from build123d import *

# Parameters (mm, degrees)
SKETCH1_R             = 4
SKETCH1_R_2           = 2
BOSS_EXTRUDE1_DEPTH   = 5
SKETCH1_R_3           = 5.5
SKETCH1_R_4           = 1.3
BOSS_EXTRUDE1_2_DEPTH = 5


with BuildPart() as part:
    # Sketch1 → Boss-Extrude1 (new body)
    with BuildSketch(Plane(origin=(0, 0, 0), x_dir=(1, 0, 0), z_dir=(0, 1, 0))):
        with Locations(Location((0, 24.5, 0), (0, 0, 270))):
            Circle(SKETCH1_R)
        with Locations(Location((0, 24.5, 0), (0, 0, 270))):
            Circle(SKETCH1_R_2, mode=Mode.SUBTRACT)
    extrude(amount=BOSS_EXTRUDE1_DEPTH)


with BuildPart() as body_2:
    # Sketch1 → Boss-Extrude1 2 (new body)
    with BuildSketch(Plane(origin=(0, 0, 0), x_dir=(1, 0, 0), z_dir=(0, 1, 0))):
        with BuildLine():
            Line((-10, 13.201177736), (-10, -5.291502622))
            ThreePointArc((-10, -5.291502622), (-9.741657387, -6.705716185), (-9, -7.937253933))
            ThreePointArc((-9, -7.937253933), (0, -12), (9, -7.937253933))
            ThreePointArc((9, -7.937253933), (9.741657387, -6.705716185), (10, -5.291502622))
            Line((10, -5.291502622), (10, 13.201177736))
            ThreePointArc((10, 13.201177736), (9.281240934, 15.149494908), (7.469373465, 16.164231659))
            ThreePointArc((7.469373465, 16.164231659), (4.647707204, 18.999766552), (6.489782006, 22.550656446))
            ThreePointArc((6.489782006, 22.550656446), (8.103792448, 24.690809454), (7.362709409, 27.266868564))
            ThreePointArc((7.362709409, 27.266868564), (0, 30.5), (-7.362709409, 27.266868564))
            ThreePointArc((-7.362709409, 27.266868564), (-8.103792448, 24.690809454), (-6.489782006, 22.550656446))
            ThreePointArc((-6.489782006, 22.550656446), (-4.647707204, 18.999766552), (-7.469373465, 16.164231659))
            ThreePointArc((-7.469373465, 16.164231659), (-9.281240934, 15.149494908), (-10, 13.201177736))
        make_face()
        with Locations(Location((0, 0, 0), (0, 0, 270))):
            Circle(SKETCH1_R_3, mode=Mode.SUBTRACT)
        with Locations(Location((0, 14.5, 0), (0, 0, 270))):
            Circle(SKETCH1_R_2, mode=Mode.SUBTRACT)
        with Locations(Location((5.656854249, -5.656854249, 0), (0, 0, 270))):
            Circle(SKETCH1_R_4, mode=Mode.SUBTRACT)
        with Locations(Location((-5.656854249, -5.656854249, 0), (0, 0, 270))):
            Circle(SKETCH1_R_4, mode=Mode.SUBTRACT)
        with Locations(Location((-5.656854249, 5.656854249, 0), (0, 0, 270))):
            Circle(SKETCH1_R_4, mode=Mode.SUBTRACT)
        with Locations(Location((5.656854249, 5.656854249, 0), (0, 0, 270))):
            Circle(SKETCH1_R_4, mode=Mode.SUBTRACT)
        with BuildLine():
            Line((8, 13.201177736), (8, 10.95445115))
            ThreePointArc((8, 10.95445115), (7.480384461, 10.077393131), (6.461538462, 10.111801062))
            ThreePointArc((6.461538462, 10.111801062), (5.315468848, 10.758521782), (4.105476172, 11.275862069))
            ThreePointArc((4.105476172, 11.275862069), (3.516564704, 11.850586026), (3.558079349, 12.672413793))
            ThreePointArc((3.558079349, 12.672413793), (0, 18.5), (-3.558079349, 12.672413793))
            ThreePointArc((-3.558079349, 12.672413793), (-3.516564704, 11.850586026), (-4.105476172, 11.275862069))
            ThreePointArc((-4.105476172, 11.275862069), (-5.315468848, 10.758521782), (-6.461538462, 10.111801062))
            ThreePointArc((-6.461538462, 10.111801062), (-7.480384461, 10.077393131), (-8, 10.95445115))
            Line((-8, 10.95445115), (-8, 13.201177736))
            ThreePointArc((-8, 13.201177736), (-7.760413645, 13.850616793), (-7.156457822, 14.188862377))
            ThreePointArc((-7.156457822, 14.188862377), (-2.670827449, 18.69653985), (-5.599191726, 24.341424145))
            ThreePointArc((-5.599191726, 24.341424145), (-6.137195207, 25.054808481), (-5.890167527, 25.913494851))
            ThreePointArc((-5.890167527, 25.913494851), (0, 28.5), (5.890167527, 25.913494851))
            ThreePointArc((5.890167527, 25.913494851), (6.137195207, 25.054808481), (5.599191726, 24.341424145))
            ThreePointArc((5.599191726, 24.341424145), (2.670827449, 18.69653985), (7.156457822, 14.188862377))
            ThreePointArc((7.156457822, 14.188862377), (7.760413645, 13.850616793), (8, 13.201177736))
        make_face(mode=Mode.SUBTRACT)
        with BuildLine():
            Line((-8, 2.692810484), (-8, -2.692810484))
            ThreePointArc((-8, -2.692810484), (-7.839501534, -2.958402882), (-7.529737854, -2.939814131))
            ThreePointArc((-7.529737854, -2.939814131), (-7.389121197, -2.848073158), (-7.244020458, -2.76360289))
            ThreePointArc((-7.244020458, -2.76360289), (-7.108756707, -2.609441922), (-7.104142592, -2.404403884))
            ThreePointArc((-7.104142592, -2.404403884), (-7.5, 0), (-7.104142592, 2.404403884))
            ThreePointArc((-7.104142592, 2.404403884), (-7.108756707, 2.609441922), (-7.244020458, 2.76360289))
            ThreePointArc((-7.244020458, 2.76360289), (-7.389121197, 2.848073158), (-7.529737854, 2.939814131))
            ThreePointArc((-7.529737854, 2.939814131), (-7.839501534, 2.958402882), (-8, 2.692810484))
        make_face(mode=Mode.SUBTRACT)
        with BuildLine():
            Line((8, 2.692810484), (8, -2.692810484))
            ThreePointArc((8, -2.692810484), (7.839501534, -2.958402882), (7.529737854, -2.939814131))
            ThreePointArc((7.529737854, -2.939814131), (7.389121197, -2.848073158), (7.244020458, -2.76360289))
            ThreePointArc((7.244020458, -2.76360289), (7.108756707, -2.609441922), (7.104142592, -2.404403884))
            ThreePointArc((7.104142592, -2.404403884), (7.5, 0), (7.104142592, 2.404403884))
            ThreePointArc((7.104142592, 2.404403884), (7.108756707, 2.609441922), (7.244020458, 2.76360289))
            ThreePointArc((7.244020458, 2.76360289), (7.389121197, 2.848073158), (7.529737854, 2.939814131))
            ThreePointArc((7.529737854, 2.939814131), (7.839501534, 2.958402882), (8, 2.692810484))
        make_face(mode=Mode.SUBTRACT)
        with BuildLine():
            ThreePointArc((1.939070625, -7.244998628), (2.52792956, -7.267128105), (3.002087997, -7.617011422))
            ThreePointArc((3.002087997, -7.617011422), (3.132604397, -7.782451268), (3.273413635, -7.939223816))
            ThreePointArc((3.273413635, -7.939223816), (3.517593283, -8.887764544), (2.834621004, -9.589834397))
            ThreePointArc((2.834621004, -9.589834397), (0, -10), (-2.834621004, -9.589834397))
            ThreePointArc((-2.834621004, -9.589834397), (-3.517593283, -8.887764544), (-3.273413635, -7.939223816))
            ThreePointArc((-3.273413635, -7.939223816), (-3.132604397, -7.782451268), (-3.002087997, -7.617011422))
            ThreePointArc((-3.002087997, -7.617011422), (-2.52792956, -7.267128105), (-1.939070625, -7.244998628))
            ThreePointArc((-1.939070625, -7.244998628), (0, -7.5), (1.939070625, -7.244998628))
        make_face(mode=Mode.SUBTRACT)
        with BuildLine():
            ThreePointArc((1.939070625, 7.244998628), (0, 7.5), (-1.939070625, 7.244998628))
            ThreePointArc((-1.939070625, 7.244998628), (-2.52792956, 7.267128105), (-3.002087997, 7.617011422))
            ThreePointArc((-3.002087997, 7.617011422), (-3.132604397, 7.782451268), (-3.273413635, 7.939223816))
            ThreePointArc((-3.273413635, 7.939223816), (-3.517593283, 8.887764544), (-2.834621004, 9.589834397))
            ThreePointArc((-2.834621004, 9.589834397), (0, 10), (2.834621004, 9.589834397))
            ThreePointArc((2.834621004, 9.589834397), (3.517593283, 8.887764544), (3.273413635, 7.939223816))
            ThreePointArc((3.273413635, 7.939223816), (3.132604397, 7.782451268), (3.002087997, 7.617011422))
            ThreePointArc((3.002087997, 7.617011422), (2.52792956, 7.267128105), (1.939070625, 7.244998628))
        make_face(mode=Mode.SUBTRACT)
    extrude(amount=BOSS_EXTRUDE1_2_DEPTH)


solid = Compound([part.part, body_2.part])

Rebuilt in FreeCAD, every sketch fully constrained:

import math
import FreeCAD as App
import Part
import Sketcher

doc = App.newDocument("Part")
body = doc.addObject("PartDesign::Body", "Body")

# Sketch on XZ plane
sketch1 = doc.addObject("Sketcher::SketchObject", "Sketch")
body.addObject(sketch1)
sketch1.AttachmentSupport = (doc.XZ_Plane, [""])
sketch1.MapMode = "FlatFace"
sketch1.addGeometry([
    Part.Circle(App.Vector(0, -24.5, 0), App.Vector(0, 0, 1), 4),
    Part.Circle(App.Vector(0, -24.5, 0), App.Vector(0, 0, 1), 2),
], False)
sketch1.addConstraint([
    Sketcher.Constraint("Coincident", 1, 3, 0, 3),
    Sketcher.Constraint("PointOnObject", 0, 3, -2),
    Sketcher.Constraint("Diameter", 0, 8.0),
    Sketcher.Constraint("Diameter", 1, 4.0),
    Sketcher.Constraint("DistanceY", 0, 3, -1, 1, 24.5),
])
pad1 = doc.addObject("PartDesign::Pad", "Pad")
body.addObject(pad1)
pad1.Profile = sketch1
pad1.Length = 5
pad1.Reversed = True
body2 = doc.addObject("PartDesign::Body", "Body001")

# Sketch on XZ plane
sketch2 = doc.addObject("Sketcher::SketchObject", "Sketch001")
body2.addObject(sketch2)
sketch2.AttachmentSupport = (doc.getObject("XZ_Plane001"), [""])
sketch2.MapMode = "FlatFace"
sketch2.addGeometry([
    Part.LineSegment(App.Vector(-10, -13.2, 0), App.Vector(-10, 5.29, 0)),  # 0
    Part.ArcOfCircle(Part.Circle(App.Vector(-6, 5.29, 0), App.Vector(0, 0, 1), 4), math.radians(139), math.radians(180)),  # 1
    Part.ArcOfCircle(Part.Circle(App.Vector(0, 0, 0), App.Vector(0, 0, 1), 12), math.radians(41), math.radians(139)),  # 2
    Part.ArcOfCircle(Part.Circle(App.Vector(6, 5.29, 0), App.Vector(0, 0, 1), 4), math.radians(0), math.radians(41)),  # 3
    Part.LineSegment(App.Vector(10, 5.29, 0), App.Vector(10, -13.2, 0)),  # 4
    Part.ArcOfCircle(Part.Circle(App.Vector(7, -13.2, 0), App.Vector(0, 0, 1), 3), math.radians(-81), math.radians(0)),  # 5
    Part.ArcOfCircle(Part.Circle(App.Vector(8, -19.51, 0), App.Vector(0, 0, 1), 3.39), math.radians(99), math.radians(244)),  # 6
    Part.ArcOfCircle(Part.Circle(App.Vector(5.15, -25.24, 0), App.Vector(0, 0, 1), 3), math.radians(-43), math.radians(64)),  # 7
    Part.ArcOfCircle(Part.Circle(App.Vector(0, -20.5, 0), App.Vector(0, 0, 1), 10), math.radians(-137), math.radians(-43)),  # 8
    Part.ArcOfCircle(Part.Circle(App.Vector(-5.15, -25.24, 0), App.Vector(0, 0, 1), 3), math.radians(116), math.radians(223)),  # 9
    Part.ArcOfCircle(Part.Circle(App.Vector(-8, -19.51, 0), App.Vector(0, 0, 1), 3.39), math.radians(-64), math.radians(81)),  # 10
    Part.ArcOfCircle(Part.Circle(App.Vector(-7, -13.2, 0), App.Vector(0, 0, 1), 3), math.radians(180), math.radians(261)),  # 11
    Part.Circle(App.Vector(-5.66, 5.66, 0), App.Vector(0, 0, 1), 1.3),  # 12
    Part.LineSegment(App.Vector(-8, 2.69, 0), App.Vector(-8, -2.69, 0)),  # 13
    Part.ArcOfCircle(Part.Circle(App.Vector(-7.7, -2.69, 0), App.Vector(0, 0, 1), 0.3), math.radians(180), math.radians(305)),  # 14
    Part.ArcOfCircle(Part.Circle(App.Vector(-5.66, -5.66, 0), App.Vector(0, 0, 1), 3.3), math.radians(118.75), math.radians(124.58)),  # 15
    Part.ArcOfCircle(Part.Circle(App.Vector(-7.39, -2.5, 0), App.Vector(0, 0, 1), 0.3), math.radians(-61), math.radians(19)),  # 16
    Part.ArcOfCircle(Part.Circle(App.Vector(0, 0, 0), App.Vector(0, 0, 1), 7.5), math.radians(161), math.radians(199)),  # 17
    Part.ArcOfCircle(Part.Circle(App.Vector(-7.39, 2.5, 0), App.Vector(0, 0, 1), 0.3), math.radians(-19), math.radians(61)),  # 18
    Part.ArcOfCircle(Part.Circle(App.Vector(-5.66, 5.66, 0), App.Vector(0, 0, 1), 3.3), math.radians(-124.58), math.radians(-118.75)),  # 19
    Part.ArcOfCircle(Part.Circle(App.Vector(-7.7, 2.69, 0), App.Vector(0, 0, 1), 0.3), math.radians(55), math.radians(180)),  # 20
    Part.Circle(App.Vector(-5.66, -5.66, 0), App.Vector(0, 0, 1), 1.3),  # 21
    Part.ArcOfCircle(Part.Circle(App.Vector(0, 0, 0), App.Vector(0, 0, 1), 7.5), math.radians(75), math.radians(105)),  # 22
    Part.ArcOfCircle(Part.Circle(App.Vector(2.2, 8.21, 0), App.Vector(0, 0, 1), 1), math.radians(-105), math.radians(-36)),  # 23
    Part.ArcOfCircle(Part.Circle(App.Vector(5.66, 5.66, 0), App.Vector(0, 0, 1), 3.3), math.radians(136.24), math.radians(143.56)),  # 24
    Part.ArcOfCircle(Part.Circle(App.Vector(2.55, 8.63, 0), App.Vector(0, 0, 1), 1), math.radians(-44), math.radians(74)),  # 25
    Part.ArcOfCircle(Part.Circle(App.Vector(0, 0, 0), App.Vector(0, 0, 1), 10), math.radians(74), math.radians(106)),  # 26
    Part.ArcOfCircle(Part.Circle(App.Vector(-2.55, 8.63, 0), App.Vector(0, 0, 1), 1), math.radians(106), math.radians(224)),  # 27
    Part.ArcOfCircle(Part.Circle(App.Vector(-5.66, 5.66, 0), App.Vector(0, 0, 1), 3.3), math.radians(36.44), math.radians(43.76)),  # 28
    Part.ArcOfCircle(Part.Circle(App.Vector(-2.2, 8.21, 0), App.Vector(0, 0, 1), 1), math.radians(-144), math.radians(-75)),  # 29
    Part.Circle(App.Vector(5.66, 5.66, 0), App.Vector(0, 0, 1), 1.3),  # 30
    Part.Circle(App.Vector(0, 0, 0), App.Vector(0, 0, 1), 5.5),  # 31
    Part.ArcOfCircle(Part.Circle(App.Vector(2.2, -8.21, 0), App.Vector(0, 0, 1), 1), math.radians(36), math.radians(105)),  # 32
    Part.ArcOfCircle(Part.Circle(App.Vector(0, 0, 0), App.Vector(0, 0, 1), 7.5), math.radians(-105), math.radians(-75)),  # 33
    Part.ArcOfCircle(Part.Circle(App.Vector(-2.2, -8.21, 0), App.Vector(0, 0, 1), 1), math.radians(75), math.radians(144)),  # 34
    Part.ArcOfCircle(Part.Circle(App.Vector(-5.66, -5.66, 0), App.Vector(0, 0, 1), 3.3), math.radians(-43.76), math.radians(-36.44)),  # 35
    Part.ArcOfCircle(Part.Circle(App.Vector(-2.55, -8.63, 0), App.Vector(0, 0, 1), 1), math.radians(136), math.radians(254)),  # 36
    Part.ArcOfCircle(Part.Circle(App.Vector(0, 0, 0), App.Vector(0, 0, 1), 10), math.radians(-106), math.radians(-74)),  # 37
    Part.ArcOfCircle(Part.Circle(App.Vector(2.55, -8.63, 0), App.Vector(0, 0, 1), 1), math.radians(-74), math.radians(44)),  # 38
    Part.ArcOfCircle(Part.Circle(App.Vector(5.66, -5.66, 0), App.Vector(0, 0, 1), 3.3), math.radians(-143.56), math.radians(-136.24)),  # 39
    Part.ArcOfCircle(Part.Circle(App.Vector(7.7, -2.69, 0), App.Vector(0, 0, 1), 0.3), math.radians(-125), math.radians(0)),  # 40
    Part.LineSegment(App.Vector(8, -2.69, 0), App.Vector(8, 2.69, 0)),  # 41
    Part.ArcOfCircle(Part.Circle(App.Vector(7.7, 2.69, 0), App.Vector(0, 0, 1), 0.3), math.radians(0), math.radians(125)),  # 42
    Part.ArcOfCircle(Part.Circle(App.Vector(5.66, 5.66, 0), App.Vector(0, 0, 1), 3.3), math.radians(-61.25), math.radians(-55.42)),  # 43
    Part.ArcOfCircle(Part.Circle(App.Vector(7.39, 2.5, 0), App.Vector(0, 0, 1), 0.3), math.radians(119), math.radians(199)),  # 44
    Part.ArcOfCircle(Part.Circle(App.Vector(0, 0, 0), App.Vector(0, 0, 1), 7.5), math.radians(-19), math.radians(19)),  # 45
    Part.ArcOfCircle(Part.Circle(App.Vector(7.39, -2.5, 0), App.Vector(0, 0, 1), 0.3), math.radians(161), math.radians(241)),  # 46
    Part.ArcOfCircle(Part.Circle(App.Vector(5.66, -5.66, 0), App.Vector(0, 0, 1), 3.3), math.radians(55.42), math.radians(61.25)),  # 47
    Part.Circle(App.Vector(5.66, -5.66, 0), App.Vector(0, 0, 1), 1.3),  # 48
    Part.Circle(App.Vector(0, -14.5, 0), App.Vector(0, 0, 1), 2),  # 49
    Part.ArcOfCircle(Part.Circle(App.Vector(7, -13.2, 0), App.Vector(0, 0, 1), 1), math.radians(-81), math.radians(0)),  # 50
    Part.LineSegment(App.Vector(8, -13.2, 0), App.Vector(8, -10.95, 0)),  # 51
    Part.ArcOfCircle(Part.Circle(App.Vector(7, -10.95, 0), App.Vector(0, 0, 1), 1), math.radians(0), math.radians(123)),  # 52
    Part.ArcOfCircle(Part.Circle(App.Vector(0, 0, 0), App.Vector(0, 0, 1), 12), math.radians(-69.99), math.radians(-57.42)),  # 53
    Part.ArcOfCircle(Part.Circle(App.Vector(4.45, -12.22, 0), App.Vector(0, 0, 1), 1), math.radians(110), math.radians(207)),  # 54
    Part.ArcOfCircle(Part.Circle(App.Vector(0, -14.5, 0), App.Vector(0, 0, 1), 4), math.radians(153), math.radians(387)),  # 55
    Part.ArcOfCircle(Part.Circle(App.Vector(-4.45, -12.22, 0), App.Vector(0, 0, 1), 1), math.radians(-27), math.radians(70)),  # 56
    Part.ArcOfCircle(Part.Circle(App.Vector(0, 0, 0), App.Vector(0, 0, 1), 12), math.radians(-122.58), math.radians(-110.01)),  # 57
    Part.ArcOfCircle(Part.Circle(App.Vector(-7, -10.95, 0), App.Vector(0, 0, 1), 1), math.radians(57), math.radians(180)),  # 58
    Part.LineSegment(App.Vector(-8, -10.95, 0), App.Vector(-8, -13.2, 0)),  # 59
    Part.ArcOfCircle(Part.Circle(App.Vector(-7, -13.2, 0), App.Vector(0, 0, 1), 1), math.radians(180), math.radians(261)),  # 60
    Part.ArcOfCircle(Part.Circle(App.Vector(-8, -19.51, 0), App.Vector(0, 0, 1), 5.39), math.radians(-64), math.radians(81)),  # 61
    Part.ArcOfCircle(Part.Circle(App.Vector(-5.15, -25.24, 0), App.Vector(0, 0, 1), 1), math.radians(116), math.radians(223)),  # 62
    Part.ArcOfCircle(Part.Circle(App.Vector(0, -20.5, 0), App.Vector(0, 0, 1), 8), math.radians(-137), math.radians(-43)),  # 63
    Part.ArcOfCircle(Part.Circle(App.Vector(5.15, -25.24, 0), App.Vector(0, 0, 1), 1), math.radians(-43), math.radians(64)),  # 64
    Part.ArcOfCircle(Part.Circle(App.Vector(8, -19.51, 0), App.Vector(0, 0, 1), 5.39), math.radians(99), math.radians(244)),  # 65
], False)
sketch2.addConstraint([
    Sketcher.Constraint("Tangent", 0, 2, 1, 2),
    Sketcher.Constraint("Tangent", 1, 1, 2, 2),
    Sketcher.Constraint("Tangent", 2, 1, 3, 2),
    Sketcher.Constraint("Tangent", 3, 1, 4, 1),
    Sketcher.Constraint("Tangent", 4, 2, 5, 2),
    Sketcher.Constraint("Tangent", 5, 1, 6, 1),
    Sketcher.Constraint("Tangent", 6, 2, 7, 2),
    Sketcher.Constraint("Tangent", 7, 1, 8, 2),
    Sketcher.Constraint("Tangent", 8, 1, 9, 2),
    Sketcher.Constraint("Tangent", 9, 1, 10, 1),
    Sketcher.Constraint("Tangent", 10, 2, 11, 2),
    Sketcher.Constraint("Tangent", 11, 1, 0, 1),
    Sketcher.Constraint("Tangent", 13, 2, 14, 1),
    Sketcher.Constraint("Tangent", 14, 2, 15, 2),
    Sketcher.Constraint("Tangent", 15, 1, 16, 1),
    Sketcher.Constraint("Tangent", 16, 2, 17, 2),
    Sketcher.Constraint("Tangent", 17, 1, 18, 1),
    Sketcher.Constraint("Tangent", 18, 2, 19, 2),
    Sketcher.Constraint("Tangent", 19, 1, 20, 1),
    Sketcher.Constraint("Tangent", 20, 2, 13, 1),
    Sketcher.Constraint("Tangent", 22, 1, 23, 1),
    Sketcher.Constraint("Tangent", 23, 2, 24, 2),
    Sketcher.Constraint("Tangent", 24, 1, 25, 1),
    Sketcher.Constraint("Tangent", 25, 2, 26, 1),
    Sketcher.Constraint("Tangent", 26, 2, 27, 1),
    Sketcher.Constraint("Tangent", 27, 2, 28, 2),
    Sketcher.Constraint("Tangent", 28, 1, 29, 1),
    Sketcher.Constraint("Tangent", 29, 2, 22, 2),
    Sketcher.Constraint("Tangent", 32, 2, 33, 2),
    Sketcher.Constraint("Tangent", 33, 1, 34, 1),
    Sketcher.Constraint("Tangent", 34, 2, 35, 2),
    Sketcher.Constraint("Tangent", 35, 1, 36, 1),
    Sketcher.Constraint("Tangent", 36, 2, 37, 1),
    Sketcher.Constraint("Tangent", 37, 2, 38, 1),
    Sketcher.Constraint("Tangent", 38, 2, 39, 2),
    Sketcher.Constraint("Tangent", 39, 1, 32, 1),
    Sketcher.Constraint("Tangent", 40, 2, 41, 1),
    Sketcher.Constraint("Tangent", 41, 2, 42, 1),
    Sketcher.Constraint("Tangent", 42, 2, 43, 2),
    Sketcher.Constraint("Tangent", 43, 1, 44, 1),
    Sketcher.Constraint("Tangent", 44, 2, 45, 2),
    Sketcher.Constraint("Tangent", 45, 1, 46, 1),
    Sketcher.Constraint("Tangent", 46, 2, 47, 2),
    Sketcher.Constraint("Tangent", 47, 1, 40, 1),
    Sketcher.Constraint("Tangent", 50, 2, 51, 1),
    Sketcher.Constraint("Tangent", 51, 2, 52, 1),
    Sketcher.Constraint("Tangent", 52, 2, 53, 2),
    Sketcher.Constraint("Tangent", 53, 1, 54, 1),
    Sketcher.Constraint("Tangent", 54, 2, 55, 2),
    Sketcher.Constraint("Tangent", 55, 1, 56, 1),
    Sketcher.Constraint("Tangent", 56, 2, 57, 2),
    Sketcher.Constraint("Tangent", 57, 1, 58, 1),
    Sketcher.Constraint("Tangent", 58, 2, 59, 1),
    Sketcher.Constraint("Tangent", 59, 2, 60, 1),
    Sketcher.Constraint("Tangent", 60, 2, 61, 2),
    Sketcher.Constraint("Tangent", 61, 1, 62, 1),
    Sketcher.Constraint("Tangent", 62, 2, 63, 1),
    Sketcher.Constraint("Tangent", 63, 2, 64, 1),
    Sketcher.Constraint("Tangent", 64, 2, 65, 2),
    Sketcher.Constraint("Tangent", 65, 1, 50, 1),
    Sketcher.Constraint("Vertical", 0),
    Sketcher.Constraint("Vertical", 4),
    Sketcher.Constraint("Vertical", 13),
    Sketcher.Constraint("Vertical", 41),
    Sketcher.Constraint("Vertical", 51),
    Sketcher.Constraint("Vertical", 59),
    Sketcher.Constraint("Coincident", 2, 3, -1, 1),
    Sketcher.Constraint("Coincident", 17, 3, -1, 1),
    Sketcher.Constraint("Coincident", 22, 3, -1, 1),
    Sketcher.Constraint("Coincident", 26, 3, -1, 1),
    Sketcher.Constraint("Coincident", 31, 3, -1, 1),
    Sketcher.Constraint("Coincident", 33, 3, -1, 1),
    Sketcher.Constraint("Coincident", 37, 3, -1, 1),
    Sketcher.Constraint("Coincident", 45, 3, -1, 1),
    Sketcher.Constraint("Coincident", 53, 3, -1, 1),
    Sketcher.Constraint("Coincident", 57, 3, -1, 1),
    Sketcher.Constraint("Coincident", 19, 3, 12, 3),
    Sketcher.Constraint("Coincident", 21, 3, 15, 3),
    Sketcher.Constraint("Coincident", 28, 3, 12, 3),
    Sketcher.Constraint("Coincident", 30, 3, 24, 3),
    Sketcher.Constraint("Coincident", 35, 3, 15, 3),
    Sketcher.Constraint("Coincident", 43, 3, 24, 3),
    Sketcher.Constraint("Coincident", 47, 3, 39, 3),
    Sketcher.Constraint("Coincident", 48, 3, 39, 3),
    Sketcher.Constraint("Coincident", 50, 3, 5, 3),
    Sketcher.Constraint("Coincident", 55, 3, 49, 3),
    Sketcher.Constraint("Coincident", 60, 3, 11, 3),
    Sketcher.Constraint("Coincident", 61, 3, 10, 3),
    Sketcher.Constraint("Coincident", 62, 3, 9, 3),
    Sketcher.Constraint("Coincident", 63, 3, 8, 3),
    Sketcher.Constraint("Coincident", 64, 3, 7, 3),
    Sketcher.Constraint("Coincident", 65, 3, 6, 3),
    Sketcher.Constraint("Equal", 1, 3),
    Sketcher.Constraint("Equal", 5, 7),
    Sketcher.Constraint("Equal", 7, 9),
    Sketcher.Constraint("Equal", 6, 10),
    Sketcher.Constraint("Equal", 9, 11),
    Sketcher.Constraint("Equal", 14, 16),
    Sketcher.Constraint("Equal", 16, 18),
    Sketcher.Constraint("Equal", 15, 19),
    Sketcher.Constraint("Equal", 18, 20),
    Sketcher.Constraint("Equal", 12, 21),
    Sketcher.Constraint("Equal", 17, 22),
    Sketcher.Constraint("Equal", 19, 24),
    Sketcher.Constraint("Equal", 23, 25),
    Sketcher.Constraint("Equal", 8, 26),
    Sketcher.Constraint("Equal", 25, 27),
    Sketcher.Constraint("Equal", 24, 28),
    Sketcher.Constraint("Equal", 27, 29),
    Sketcher.Constraint("Equal", 21, 30),
    Sketcher.Constraint("Equal", 29, 32),
    Sketcher.Constraint("Equal", 22, 33),
    Sketcher.Constraint("Equal", 32, 34),
    Sketcher.Constraint("Equal", 28, 35),
    Sketcher.Constraint("Equal", 34, 36),
    Sketcher.Constraint("Equal", 26, 37),
    Sketcher.Constraint("Equal", 36, 38),
    Sketcher.Constraint("Equal", 35, 39),
    Sketcher.Constraint("Equal", 20, 40),
    Sketcher.Constraint("Equal", 40, 42),
    Sketcher.Constraint("Equal", 39, 43),
    Sketcher.Constraint("Equal", 42, 44),
    Sketcher.Constraint("Equal", 33, 45),
    Sketcher.Constraint("Equal", 44, 46),
    Sketcher.Constraint("Equal", 43, 47),
    Sketcher.Constraint("Equal", 30, 48),
    Sketcher.Constraint("Equal", 38, 50),
    Sketcher.Constraint("Equal", 50, 52),
    Sketcher.Constraint("Equal", 2, 53),
    Sketcher.Constraint("Equal", 52, 54),
    Sketcher.Constraint("Equal", 3, 55),
    Sketcher.Constraint("Equal", 54, 56),
    Sketcher.Constraint("Equal", 53, 57),
    Sketcher.Constraint("Equal", 56, 58),
    Sketcher.Constraint("Symmetric", 15, 3, 24, 3, -1, 1),
    Sketcher.Constraint("Symmetric", 12, 3, 39, 3, -1, 1),
    Sketcher.Constraint("Symmetric", 7, 3, 9, 3, -2),
    Sketcher.Constraint("Symmetric", 5, 3, 11, 3, -2),
    Sketcher.Constraint("Symmetric", 12, 3, 24, 3, -2),
    Sketcher.Constraint("PointOnObject", 49, 3, -2),
    Sketcher.Constraint("Horizontal", 14, 3, 40, 3),
    Sketcher.Constraint("Vertical", 61, 3, 13, 2),
    Sketcher.Constraint("Vertical", 41, 2, 50, 2),
    Sketcher.Constraint("Diameter", 31, 11.0),
    Sketcher.Constraint("Diameter", 49, 4.0),
    Sketcher.Constraint("Radius", 1, 4.0),
    Sketcher.Constraint("Radius", 2, 12.0),
    Sketcher.Constraint("Radius", 5, 3.0),
    Sketcher.Constraint("Radius", 8, 10.0),
    Sketcher.Constraint("Radius", 23, 1.0),
    Sketcher.Constraint("Diameter", 12, 2.6),
    Sketcher.Constraint("Radius", 14, 0.3),
    Sketcher.Constraint("Radius", 15, 3.300001),
    Sketcher.Constraint("Radius", 17, 7.5),
    Sketcher.Constraint("DistanceX", 1, 3, -1, 1, 6.0),
    Sketcher.Constraint("DistanceY", 8, 3, -1, 1, 20.5),
    Sketcher.Constraint("DistanceY", 49, 3, -1, 1, 14.5),
    Sketcher.Constraint("Radius", 6, 3.391499),
    Sketcher.Constraint("DistanceY", -1, 1, 23, 3, 8.210998),
    Sketcher.Constraint("DistanceY", 0, 1, 0, 2, 18.49268),
    Sketcher.Constraint("DistanceY", 13, 2, 13, 1, 5.385621),
])
pad2 = doc.addObject("PartDesign::Pad", "Pad001")
body2.addObject(pad2)
pad2.Profile = sketch2
pad2.Length = 5
pad2.Reversed = True

doc.recompute()
